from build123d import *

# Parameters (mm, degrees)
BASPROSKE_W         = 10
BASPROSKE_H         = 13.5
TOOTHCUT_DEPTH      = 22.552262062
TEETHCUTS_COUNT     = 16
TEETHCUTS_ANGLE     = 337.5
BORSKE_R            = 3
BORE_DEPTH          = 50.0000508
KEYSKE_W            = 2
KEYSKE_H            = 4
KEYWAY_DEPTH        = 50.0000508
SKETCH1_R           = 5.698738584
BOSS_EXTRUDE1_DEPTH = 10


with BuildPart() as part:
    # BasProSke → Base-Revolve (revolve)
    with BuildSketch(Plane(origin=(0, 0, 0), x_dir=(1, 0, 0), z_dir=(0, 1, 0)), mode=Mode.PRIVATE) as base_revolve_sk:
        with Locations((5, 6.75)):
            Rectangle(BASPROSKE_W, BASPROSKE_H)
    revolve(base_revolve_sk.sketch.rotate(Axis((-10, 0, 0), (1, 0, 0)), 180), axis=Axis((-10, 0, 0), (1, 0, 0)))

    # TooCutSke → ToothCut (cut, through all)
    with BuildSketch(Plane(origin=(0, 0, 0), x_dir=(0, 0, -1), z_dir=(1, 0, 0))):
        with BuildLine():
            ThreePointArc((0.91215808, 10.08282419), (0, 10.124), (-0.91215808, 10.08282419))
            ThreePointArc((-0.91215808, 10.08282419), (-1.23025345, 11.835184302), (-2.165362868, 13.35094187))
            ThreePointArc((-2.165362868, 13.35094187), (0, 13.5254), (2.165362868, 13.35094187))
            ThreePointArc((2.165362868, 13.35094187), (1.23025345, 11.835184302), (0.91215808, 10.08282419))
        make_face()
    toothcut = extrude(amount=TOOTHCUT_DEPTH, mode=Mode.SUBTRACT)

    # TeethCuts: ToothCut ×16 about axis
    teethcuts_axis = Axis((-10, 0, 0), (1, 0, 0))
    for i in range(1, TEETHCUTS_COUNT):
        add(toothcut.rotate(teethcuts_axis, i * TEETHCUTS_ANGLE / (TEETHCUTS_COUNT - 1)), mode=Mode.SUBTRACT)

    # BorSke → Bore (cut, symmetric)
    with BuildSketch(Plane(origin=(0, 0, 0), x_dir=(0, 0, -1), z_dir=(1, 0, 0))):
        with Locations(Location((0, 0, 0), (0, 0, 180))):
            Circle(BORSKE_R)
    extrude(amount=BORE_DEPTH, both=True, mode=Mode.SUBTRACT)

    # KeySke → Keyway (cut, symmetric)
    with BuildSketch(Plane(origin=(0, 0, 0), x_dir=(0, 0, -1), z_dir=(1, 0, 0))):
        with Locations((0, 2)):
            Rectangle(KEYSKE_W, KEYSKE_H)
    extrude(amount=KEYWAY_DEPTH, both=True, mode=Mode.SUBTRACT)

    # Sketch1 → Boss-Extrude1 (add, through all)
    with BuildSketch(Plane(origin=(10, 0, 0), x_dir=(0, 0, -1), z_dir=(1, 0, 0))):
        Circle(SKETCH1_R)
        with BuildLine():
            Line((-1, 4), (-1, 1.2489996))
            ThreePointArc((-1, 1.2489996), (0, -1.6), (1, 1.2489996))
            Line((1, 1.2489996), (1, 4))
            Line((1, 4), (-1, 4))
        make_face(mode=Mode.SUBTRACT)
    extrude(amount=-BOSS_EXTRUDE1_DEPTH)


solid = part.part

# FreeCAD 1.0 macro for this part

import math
import FreeCAD as App
import Part
import Sketcher

V = App.Vector
Q = App.Units.Quantity

doc = App.newDocument("Part")
body = doc.addObject("PartDesign::Body", "Body")

sketch1 = body.newObject("Sketcher::SketchObject", "Sketch")
sketch1.AttachmentSupport = (doc.getObject("XZ_Plane"), [""])
sketch1.MapMode = "FlatFace"
sketch1.addGeometry([
    Part.LineSegment(V(0, -14, 0), V(0, 0, 0)),
    Part.LineSegment(V(0, 0, 0), V(10, 0, 0)),
    Part.LineSegment(V(10, 0, 0), V(10, -14, 0)),
    Part.LineSegment(V(10, -14, 0), V(0, -14, 0)),
], False)
sketch1.addConstraint([
    Sketcher.Constraint("Coincident", 0, 2, 1, 1),
    Sketcher.Constraint("Coincident", 1, 2, 2, 1),
    Sketcher.Constraint("Coincident", 2, 2, 3, 1),
    Sketcher.Constraint("Coincident", 3, 2, 0, 1),
    Sketcher.Constraint("Vertical", 0),
    Sketcher.Constraint("Horizontal", 1),
    Sketcher.Constraint("Vertical", 2),
    Sketcher.Constraint("Horizontal", 3),
    Sketcher.Constraint("Coincident", 0, 2, -1, 1),
    Sketcher.Constraint("DistanceX", 1, 1, 1, 2, Q("10 mm")),
    Sketcher.Constraint("DistanceY", 0, 1, 0, 2, Q("13.5 mm")),
])
revolution = body.newObject("PartDesign::Revolution", "Revolution")
revolution.Profile = sketch1
revolution.ReferenceAxis = (sketch1, ["H_Axis"])
revolution.Angle = 360

sketch2 = body.newObject("Sketcher::SketchObject", "Sketch001")
sketch2.AttachmentSupport = (doc.getObject("YZ_Plane"), [""])
sketch2.MapMode = "FlatFace"
sketch2.addGeometry([
    Part.ArcOfCircle(Part.Circle(V(0, 0, 0), V(0, 0, 1), 10.1), math.radians(-5.17), math.radians(5.17)),
    Part.ArcOfCircle(Part.Circle(V(10.1, -5.7, 0), V(0, 0, 1), 4.8), math.radians(48), math.radians(90)),
    Part.ArcOfCircle(Part.Circle(V(0, 0, 0), V(0, 0, 1), 13.5), math.radians(-9.21), math.radians(9.21)),
    Part.ArcOfCircle(Part.Circle(V(10.1, 5.7, 0), V(0, 0, 1), 4.8), math.radians(-90), math.radians(-48)),
], False)
sketch2.addConstraint([
    Sketcher.Constraint("Coincident", 0, 1, 1, 2),
    Sketcher.Constraint("Coincident", 1, 1, 2, 1),
    Sketcher.Constraint("Coincident", 2, 2, 3, 2),
    Sketcher.Constraint("Coincident", 3, 1, 0, 2),
    Sketcher.Constraint("Coincident", 0, 3, -1, 1),
    Sketcher.Constraint("Coincident", 2, 3, -1, 1),
    Sketcher.Constraint("Equal", 1, 3),
    Sketcher.Constraint("Symmetric", 1, 3, 3, 3, -1),
    Sketcher.Constraint("Radius", 1, Q("4.8 mm")),
    Sketcher.Constraint("Radius", 0, Q("10.124 mm")),
    Sketcher.Constraint("Radius", 2, Q("13.5254 mm")),
    Sketcher.Constraint("DistanceX", -1, 1, 1, 3, Q("10.116582 mm")),
    Sketcher.Constraint("DistanceY", 1, 3, -1, 1, Q("5.712039 mm")),
])
pocket1 = body.newObject("PartDesign::Pocket", "Pocket")
pocket1.Profile = sketch2
pocket1.Type = "ThroughAll"
pocket1.Reversed = True
doc.recompute()

polarpattern = body.newObject("PartDesign::PolarPattern", "PolarPattern")
polarpattern.Originals = [pocket1]
polarpattern.Axis = (doc.getObject("X_Axis"), [""])
polarpattern.Angle = 360
polarpattern.Occurrences = 16
body.Tip = polarpattern

sketch3 = body.newObject("Sketcher::SketchObject", "Sketch002")
sketch3.AttachmentSupport = (doc.getObject("YZ_Plane"), [""])
sketch3.MapMode = "FlatFace"
sketch3.addGeometry(Part.Circle(V(0, 0, 0), V(0, 0, 1), 3), False)
sketch3.addConstraint([
    Sketcher.Constraint("Coincident", 0, 3, -1, 1),
    Sketcher.Constraint("Diameter", 0, Q("6 mm")),
])
pocket2 = body.newObject("PartDesign::Pocket", "Pocket001")
pocket2.Profile = sketch3
pocket2.Length = 100.000102
pocket2.Midplane = True

sketch4 = body.newObject("Sketcher::SketchObject", "Sketch003")
sketch4.AttachmentSupport = (doc.getObject("YZ_Plane"), [""])
sketch4.MapMode = "FlatFace"
sketch4.addGeometry([
    Part.LineSegment(V(4, 1, 0), V(0, 1, 0)),
    Part.LineSegment(V(0, 1, 0), V(0, -1, 0)),
    Part.LineSegment(V(0, -1, 0), V(4, -1, 0)),
    Part.LineSegment(V(4, -1, 0), V(4, 1, 0)),
], False)
sketch4.addConstraint([
    Sketcher.Constraint("Coincident", 0, 2, 1, 1),
    Sketcher.Constraint("Coincident", 1, 2, 2, 1),
    Sketcher.Constraint("Coincident", 2, 2, 3, 1),
    Sketcher.Constraint("Coincident", 3, 2, 0, 1),
    Sketcher.Constraint("Horizontal", 0),
    Sketcher.Constraint("Vertical", 1),
    Sketcher.Constraint("Horizontal", 2),
    Sketcher.Constraint("Vertical", 3),
    Sketcher.Constraint("Symmetric", 0, 2, 1, 2, -1, 1),
    Sketcher.Constraint("DistanceX", 0, 2, 0, 1, Q("4 mm")),
    Sketcher.Constraint("DistanceY", 1, 2, 1, 1, Q("2 mm")),
])
pocket3 = body.newObject("PartDesign::Pocket", "Pocket002")
pocket3.Profile = sketch4
pocket3.Length = 100.000102
pocket3.Midplane = True

sketch5 = body.newObject("Sketcher::SketchObject", "Sketch004")
sketch5.AttachmentSupport = (doc.getObject("YZ_Plane"), [""])
sketch5.MapMode = "FlatFace"
sketch5.AttachmentOffset = App.Placement(V(0, 0, 10), App.Rotation())
sketch5.addGeometry([
    Part.Circle(V(0, 0, 0), V(0, 0, 1), 5.7),
    Part.LineSegment(V(1.2, 1, 0), V(4, 1, 0)),
    Part.LineSegment(V(4, 1, 0), V(4, -1, 0)),
    Part.LineSegment(V(4, -1, 0), V(1.2, -1, 0)),
    Part.ArcOfCircle(Part.Circle(V(0, 0, 0), V(0, 0, 1), 1.6), math.radians(39), math.radians(321)),
], False)
sketch5.addConstraint([
    Sketcher.Constraint("Coincident", 1, 2, 2, 1),
    Sketcher.Constraint("Coincident", 2, 2, 3, 1),
    Sketcher.Constraint("Coincident", 3, 2, 4, 2),
    Sketcher.Constraint("Coincident", 4, 1, 1, 1),
    Sketcher.Constraint("Horizontal", 1),
    Sketcher.Constraint("Vertical", 2),
    Sketcher.Constraint("Horizontal", 3),
    Sketcher.Constraint("Coincident", 0, 3, -1, 1),
    Sketcher.Constraint("Coincident", 4, 3, -1, 1),
    Sketcher.Constraint("Vertical", 3, 2, 4, 1),
    Sketcher.Constraint("Radius", 4, Q("1.6 mm")),
    Sketcher.Constraint("DistanceY", 2, 2, 2, 1, Q("2 mm")),
    Sketcher.Constraint("DistanceX", -1, 1, 1, 2, Q("4 mm")),
    Sketcher.Constraint("Diameter", 0, Q("11.397477 mm")),
])
pad1 = body.newObject("PartDesign::Pad", "Pad")
pad1.Profile = sketch5
pad1.Length = 10
pad1.Reversed = True

doc.recompute()
